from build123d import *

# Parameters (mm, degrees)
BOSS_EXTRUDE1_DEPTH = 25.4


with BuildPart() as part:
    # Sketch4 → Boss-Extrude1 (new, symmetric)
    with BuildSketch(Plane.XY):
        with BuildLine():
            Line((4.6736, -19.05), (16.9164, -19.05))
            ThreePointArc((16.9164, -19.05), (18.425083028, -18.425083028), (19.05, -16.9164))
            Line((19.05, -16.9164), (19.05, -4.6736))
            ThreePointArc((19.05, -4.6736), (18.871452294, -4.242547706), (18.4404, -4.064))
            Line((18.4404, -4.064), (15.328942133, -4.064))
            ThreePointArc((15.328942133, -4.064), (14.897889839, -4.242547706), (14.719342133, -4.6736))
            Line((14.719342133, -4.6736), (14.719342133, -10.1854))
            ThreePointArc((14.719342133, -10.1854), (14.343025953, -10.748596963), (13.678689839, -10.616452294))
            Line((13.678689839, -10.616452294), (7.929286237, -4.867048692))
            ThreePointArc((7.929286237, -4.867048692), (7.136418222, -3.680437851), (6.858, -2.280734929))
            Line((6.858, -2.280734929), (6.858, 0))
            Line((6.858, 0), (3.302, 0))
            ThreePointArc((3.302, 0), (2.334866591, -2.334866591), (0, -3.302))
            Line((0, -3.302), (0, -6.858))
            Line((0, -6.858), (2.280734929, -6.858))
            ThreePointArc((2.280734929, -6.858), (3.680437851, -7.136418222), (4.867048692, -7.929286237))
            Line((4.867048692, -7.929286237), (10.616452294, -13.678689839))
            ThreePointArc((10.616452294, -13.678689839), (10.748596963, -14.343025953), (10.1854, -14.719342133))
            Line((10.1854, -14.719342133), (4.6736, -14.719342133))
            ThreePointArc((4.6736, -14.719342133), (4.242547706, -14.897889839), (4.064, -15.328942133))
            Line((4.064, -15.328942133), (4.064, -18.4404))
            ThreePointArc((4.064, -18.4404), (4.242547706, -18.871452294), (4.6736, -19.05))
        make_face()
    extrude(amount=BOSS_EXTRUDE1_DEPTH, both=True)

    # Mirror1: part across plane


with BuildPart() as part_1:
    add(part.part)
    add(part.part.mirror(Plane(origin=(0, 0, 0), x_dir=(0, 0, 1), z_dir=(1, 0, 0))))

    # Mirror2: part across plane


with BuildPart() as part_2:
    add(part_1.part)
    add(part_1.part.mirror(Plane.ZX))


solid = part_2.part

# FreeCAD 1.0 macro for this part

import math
import FreeCAD as App
import Part
import Sketcher
Q = App.Units.Quantity

doc = App.newDocument("Part")
body = doc.addObject("PartDesign::Body", "Body")

sketch1 = body.newObject("Sketcher::SketchObject", "Sketch")
sketch1.AttachmentSupport = (doc.getObject("XY_Plane"), [""])
sketch1.MapMode = "FlatFace"
sketch1.addGeometry([
    Part.LineSegment(App.Vector(4.7, -19.1, 0), App.Vector(16.9, -19.1, 0)),
    Part.ArcOfCircle(Part.Circle(App.Vector(16.9, -16.9, 0), App.Vector(0, 0, 1), 2.1), math.radians(-90), math.radians(0)),
    Part.LineSegment(App.Vector(19.1, -16.9, 0), App.Vector(19.1, -4.7, 0)),
    Part.ArcOfCircle(Part.Circle(App.Vector(18.4, -4.7, 0), App.Vector(0, 0, 1), 0.6), math.radians(0), math.radians(90)),
    Part.LineSegment(App.Vector(18.4, -4.1, 0), App.Vector(15.3, -4.1, 0)),
    Part.ArcOfCircle(Part.Circle(App.Vector(15.3, -4.7, 0), App.Vector(0, 0, 1), 0.6), math.radians(90), math.radians(180)),
    Part.LineSegment(App.Vector(14.7, -4.7, 0), App.Vector(14.7, -10.2, 0)),
    Part.ArcOfCircle(Part.Circle(App.Vector(14.1, -10.2, 0), App.Vector(0, 0, 1), 0.6), math.radians(-135), math.radians(0)),
    Part.LineSegment(App.Vector(13.7, -10.6, 0), App.Vector(7.9, -4.9, 0)),
    Part.ArcOfCircle(Part.Circle(App.Vector(10.5, -2.3, 0), App.Vector(0, 0, 1), 3.7), math.radians(-180), math.radians(-135)),
    Part.LineSegment(App.Vector(6.9, -2.3, 0), App.Vector(6.9, 0, 0)),
    Part.LineSegment(App.Vector(6.9, 0, 0), App.Vector(3.3, 0, 0)),
    Part.ArcOfCircle(Part.Circle(App.Vector(0, 0, 0), App.Vector(0, 0, 1), 3.3), math.radians(-90), math.radians(0)),
    Part.LineSegment(App.Vector(0, -3.3, 0), App.Vector(0, -6.9, 0)),
    Part.LineSegment(App.Vector(0, -6.9, 0), App.Vector(2.3, -6.9, 0)),
    Part.ArcOfCircle(Part.Circle(App.Vector(2.3, -10.5, 0), App.Vector(0, 0, 1), 3.7), math.radians(45), math.radians(90)),
    Part.LineSegment(App.Vector(4.9, -7.9, 0), App.Vector(10.6, -13.7, 0)),
    Part.ArcOfCircle(Part.Circle(App.Vector(10.2, -14.1, 0), App.Vector(0, 0, 1), 0.6), math.radians(-90), math.radians(45)),
    Part.LineSegment(App.Vector(10.2, -14.7, 0), App.Vector(4.7, -14.7, 0)),
    Part.ArcOfCircle(Part.Circle(App.Vector(4.7, -15.3, 0), App.Vector(0, 0, 1), 0.6), math.radians(90), math.radians(180)),
    Part.LineSegment(App.Vector(4.1, -15.3, 0), App.Vector(4.1, -18.4, 0)),
    Part.ArcOfCircle(Part.Circle(App.Vector(4.7, -18.4, 0), App.Vector(0, 0, 1), 0.6), math.radians(180), math.radians(270)),
], False)
sketch1.addConstraint([
    Sketcher.Constraint("Tangent", 0, 2, 1, 1),
    Sketcher.Constraint("Tangent", 1, 2, 2, 1),
    Sketcher.Constraint("Tangent", 2, 2, 3, 1),
    Sketcher.Constraint("Tangent", 3, 2, 4, 1),
    Sketcher.Constraint("Tangent", 4, 2, 5, 1),
    Sketcher.Constraint("Tangent", 5, 2, 6, 1),
    Sketcher.Constraint("Tangent", 6, 2, 7, 2),
    Sketcher.Constraint("Tangent", 7, 1, 8, 1),
    Sketcher.Constraint("Tangent", 8, 2, 9, 2),
    Sketcher.Constraint("Tangent", 9, 1, 10, 1),
    Sketcher.Constraint("Coincident", 10, 2, 11, 1),
    Sketcher.Constraint("Coincident", 11, 2, 12, 2),
    Sketcher.Constraint("Coincident", 12, 1, 13, 1),
    Sketcher.Constraint("Coincident", 13, 2, 14, 1),
    Sketcher.Constraint("Tangent", 14, 2, 15, 2),
    Sketcher.Constraint("Tangent", 15, 1, 16, 1),
    Sketcher.Constraint("Tangent", 16, 2, 17, 2),
    Sketcher.Constraint("Tangent", 17, 1, 18, 1),
    Sketcher.Constraint("Tangent", 18, 2, 19, 1),
    Sketcher.Constraint("Tangent", 19, 2, 20, 1),
    Sketcher.Constraint("Tangent", 20, 2, 21, 1),
    Sketcher.Constraint("Tangent", 21, 2, 0, 1),
    Sketcher.Constraint("Horizontal", 0),
    Sketcher.Constraint("Vertical", 2),
    Sketcher.Constraint("Horizontal", 4),
    Sketcher.Constraint("Vertical", 6),
    Sketcher.Constraint("Vertical", 10),
    Sketcher.Constraint("Horizontal", 11),
    Sketcher.Constraint("Vertical", 13),
    Sketcher.Constraint("Horizontal", 14),
    Sketcher.Constraint("Horizontal", 18),
    Sketcher.Constraint("Vertical", 20),
    Sketcher.Constraint("Coincident", 12, 3, -1, 1),
    Sketcher.Constraint("Equal", 3, 5),
    Sketcher.Constraint("Equal", 5, 7),
    Sketcher.Constraint("Equal", 9, 15),
    Sketcher.Constraint("Equal", 7, 17),
    Sketcher.Constraint("Equal", 17, 19),
    Sketcher.Constraint("Equal", 19, 21),
    Sketcher.Constraint("PointOnObject", 10, 2, -1),
    Sketcher.Constraint("PointOnObject", 12, 1, -2),
    Sketcher.Constraint("Parallel", 8, 16),
    Sketcher.Constraint("Equal", 0, 2),
    Sketcher.Constraint("Equal", 18, 6),
    Sketcher.Constraint("Equal", 14, 10),
    Sketcher.Constraint("Equal", 11, 13),
    Sketcher.Constraint("Equal", 4, 20),
    Sketcher.Constraint("Equal", 8, 16),
    Sketcher.Constraint("Radius", 12, Q("0.13 in")),
    Sketcher.Constraint("Radius", 1, Q("0.084 in")),
    Sketcher.Constraint("Radius", 3, Q("0.024 in")),
    Sketcher.Constraint("Radius", 9, Q("0.144 in")),
    Sketcher.Constraint("DistanceX", 11, 2, 11, 1, Q("0.14 in")),
    Sketcher.Constraint("DistanceX", 0, 1, 0, 2, Q("0.482 in")),
    Sketcher.Constraint("DistanceX", 18, 2, 18, 1, Q("0.217 in")),
    Sketcher.Constraint("DistanceY", 0, 2, -1, 1, Q("0.75 in")),
    Sketcher.Constraint("DistanceX", 4, 2, 4, 1, Q("3.111458 mm")),
])
pad1 = body.newObject("PartDesign::Pad", "Pad")
pad1.Profile = sketch1
pad1.Length = Q("2 in")
pad1.Midplane = True
body2 = doc.addObject("PartDesign::Body", "Body001")
doc.recompute()

body2.BaseFeature = body
doc.recompute()

mirroring = doc.addObject("Part::Mirroring", "Mirroring")
mirroring.Source = body
mirroring.Base = App.Vector(0, 0, 0)
mirroring.Normal = App.Vector(1, 0, 0)
body3 = doc.addObject("PartDesign::Body", "Body002")
body3.BaseFeature = mirroring
boolean = body2.newObject("PartDesign::Boolean", "Boolean")
boolean.Type = "Fuse"
boolean.addObjects([body3])
doc.recompute()
body4 = doc.addObject("PartDesign::Body", "Body003")
doc.recompute()

body4.BaseFeature = body2
doc.recompute()

mirroring2 = doc.addObject("Part::Mirroring", "Mirroring001")
mirroring2.Source = body2
mirroring2.Base = App.Vector(0, 0, 0)
mirroring2.Normal = App.Vector(0, 1, 0)
body5 = doc.addObject("PartDesign::Body", "Body004")
body5.BaseFeature = mirroring2
boolean2 = body4.newObject("PartDesign::Boolean", "Boolean001")
boolean2.Type = "Fuse"
boolean2.addObjects([body5])
doc.recompute()
mirroring.Visibility = False
mirroring2.Visibility = False

doc.recompute()
